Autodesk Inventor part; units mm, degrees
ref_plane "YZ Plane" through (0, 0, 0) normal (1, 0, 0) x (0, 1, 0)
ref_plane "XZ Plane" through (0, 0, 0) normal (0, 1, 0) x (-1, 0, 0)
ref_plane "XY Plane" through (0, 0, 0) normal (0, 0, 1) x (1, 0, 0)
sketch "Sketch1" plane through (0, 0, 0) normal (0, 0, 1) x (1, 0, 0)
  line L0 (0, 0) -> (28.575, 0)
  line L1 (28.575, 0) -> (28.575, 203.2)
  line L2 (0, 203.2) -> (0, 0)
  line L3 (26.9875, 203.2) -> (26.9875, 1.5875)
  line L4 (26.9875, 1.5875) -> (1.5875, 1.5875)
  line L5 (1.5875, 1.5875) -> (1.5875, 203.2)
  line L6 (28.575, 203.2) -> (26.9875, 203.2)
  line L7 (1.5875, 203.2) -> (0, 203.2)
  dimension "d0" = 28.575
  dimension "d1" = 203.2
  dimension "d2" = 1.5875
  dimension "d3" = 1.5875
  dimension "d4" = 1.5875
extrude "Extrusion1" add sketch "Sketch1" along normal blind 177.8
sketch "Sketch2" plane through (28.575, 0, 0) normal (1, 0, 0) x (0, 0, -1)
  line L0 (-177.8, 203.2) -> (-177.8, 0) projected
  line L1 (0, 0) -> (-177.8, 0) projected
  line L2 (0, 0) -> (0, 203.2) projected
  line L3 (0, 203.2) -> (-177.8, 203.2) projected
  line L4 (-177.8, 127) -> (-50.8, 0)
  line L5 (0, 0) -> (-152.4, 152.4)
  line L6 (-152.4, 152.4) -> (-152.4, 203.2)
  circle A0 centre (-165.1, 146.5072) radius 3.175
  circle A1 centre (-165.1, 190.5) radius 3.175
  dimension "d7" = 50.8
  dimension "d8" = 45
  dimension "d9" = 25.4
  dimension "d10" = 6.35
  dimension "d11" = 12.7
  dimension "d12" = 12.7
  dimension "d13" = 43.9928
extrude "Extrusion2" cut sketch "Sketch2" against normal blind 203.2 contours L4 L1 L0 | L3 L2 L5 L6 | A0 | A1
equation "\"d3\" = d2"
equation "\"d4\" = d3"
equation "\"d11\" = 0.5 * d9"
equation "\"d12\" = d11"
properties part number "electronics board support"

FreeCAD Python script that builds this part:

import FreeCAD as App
import Part
import Sketcher
from FreeCAD import Vector
Q = App.Units.Quantity

doc = App.newDocument("Part")
params = doc.addObject("Spreadsheet::Sheet", "Params")
for row, (alias, value) in enumerate([
    ("sketch1_height", "8 in"),
    ("sketch1_width", "1.125 in"),
    ("sketch1_width2", "0.0625 in"),
    ("pad1_length", "7 in"),
    ("sketch2_diameter", "0.25 in"),
    ("sketch2_width", "2 in"),
    ("sketch2_width2", "5 in"),
    ("pocket1_length", "8 in"),
], start=1):
    params.set(f"A{row}", alias)
    params.set(f"B{row}", "=" + value)
    params.setAlias(f"B{row}", alias)

body = doc.addObject("PartDesign::Body", "Body")

# Sketch on XY plane
sketch1 = body.newObject("Sketcher::SketchObject", "Sketch")
sketch1.AttachmentSupport = (doc.getObject("XY_Plane"), [""])
sketch1.MapMode = "FlatFace"
sketch1.addGeometry([
    Part.LineSegment(Vector(0, 203.2, 0), Vector(0, 0, 0)),  # 0
    Part.LineSegment(Vector(0, 0, 0), Vector(28.6, 0, 0)),  # 1
    Part.LineSegment(Vector(28.6, 0, 0), Vector(28.6, 203.2, 0)),  # 2
    Part.LineSegment(Vector(28.6, 203.2, 0), Vector(27, 203.2, 0)),  # 3
    Part.LineSegment(Vector(27, 203.2, 0), Vector(27, 1.6, 0)),  # 4
    Part.LineSegment(Vector(27, 1.6, 0), Vector(1.6, 1.6, 0)),  # 5
    Part.LineSegment(Vector(1.6, 1.6, 0), Vector(1.6, 203.2, 0)),  # 6
    Part.LineSegment(Vector(1.6, 203.2, 0), Vector(0, 203.2, 0)),  # 7
], False)
sketch1.addConstraint([
    Sketcher.Constraint("Coincident", 0, 2, 1, 1),
    Sketcher.Constraint("Coincident", 1, 2, 2, 1),
    Sketcher.Constraint("Coincident", 2, 2, 3, 1),
    Sketcher.Constraint("Coincident", 3, 2, 4, 1),
    Sketcher.Constraint("Coincident", 4, 2, 5, 1),
    Sketcher.Constraint("Coincident", 5, 2, 6, 1),
    Sketcher.Constraint("Coincident", 6, 2, 7, 1),
    Sketcher.Constraint("Coincident", 7, 2, 0, 1),
    Sketcher.Constraint("Vertical", 0),
    Sketcher.Constraint("Horizontal", 1),
    Sketcher.Constraint("Vertical", 2),
    Sketcher.Constraint("Horizontal", 3),
    Sketcher.Constraint("Vertical", 4),
    Sketcher.Constraint("Horizontal", 5),
    Sketcher.Constraint("Vertical", 6),
    Sketcher.Constraint("Horizontal", 7),
    Sketcher.Constraint("Coincident", 0, 2, -1, 1),
    Sketcher.Constraint("Horizontal", 3, 2, 6, 2),
    Sketcher.Constraint("Equal", 3, 7),
    Sketcher.Constraint("DistanceY", 0, 2, 0, 1, Q("8 in")),
    Sketcher.Constraint("DistanceX", 1, 1, 1, 2, Q("1.125 in")),
    Sketcher.Constraint("DistanceX", 3, 2, 3, 1, Q("0.0625 in")),
    Sketcher.Constraint("DistanceY", -1, 1, 4, 2, Q("0.0625 in")),
])
sketch1.setExpression("Constraints[19]", "Params.sketch1_height")
sketch1.setExpression("Constraints[20]", "Params.sketch1_width")
sketch1.setExpression("Constraints[21]", "Params.sketch1_width2")
pad1 = body.newObject("PartDesign::Pad", "Pad")
pad1.Profile = sketch1
pad1.setExpression("Length", "Params.pad1_length")

# Sketch on YZ plane
sketch2 = body.newObject("Sketcher::SketchObject", "Sketch001")
sketch2.AttachmentSupport = (doc.getObject("YZ_Plane"), [""])
sketch2.MapMode = "FlatFace"
sketch2.AttachmentOffset = App.Placement(Vector(0, 0, 1.125 * 25.4), App.Rotation())
sketch2.addGeometry([
    Part.LineSegment(Vector(0, 50.8, 0), Vector(127, 177.8, 0)),  # 0
    Part.LineSegment(Vector(127, 177.8, 0), Vector(0, 177.8, 0)),  # 1
    Part.LineSegment(Vector(0, 177.8, 0), Vector(0, 50.8, 0)),  # 2
    Part.LineSegment(Vector(203.2, 0, 0), Vector(203.2, 152.4, 0)),  # 3
    Part.LineSegment(Vector(203.2, 152.4, 0), Vector(152.4, 152.4, 0)),  # 4
    Part.LineSegment(Vector(152.4, 152.4, 0), Vector(0, 0, 0)),  # 5
    Part.LineSegment(Vector(0, 0, 0), Vector(203.2, 0, 0)),  # 6
    Part.Circle(Vector(146.5, 165.1, 0), Vector(0, 0, 1), 3.2),  # 7
    Part.Circle(Vector(190.5, 165.1, 0), Vector(0, 0, 1), 3.2),  # 8
], False)
sketch2.addConstraint([
    Sketcher.Constraint("Coincident", 0, 2, 1, 1),
    Sketcher.Constraint("Coincident", 1, 2, 2, 1),
    Sketcher.Constraint("Coincident", 2, 2, 0, 1),
    Sketcher.Constraint("Coincident", 3, 2, 4, 1),
    Sketcher.Constraint("Coincident", 4, 2, 5, 1),
    Sketcher.Constraint("Coincident", 5, 2, 6, 1),
    Sketcher.Constraint("Coincident", 6, 2, 3, 1),
    Sketcher.Constraint("Horizontal", 1),
    Sketcher.Constraint("Vertical", 2),
    Sketcher.Constraint("Vertical", 3),
    Sketcher.Constraint("Horizontal", 4),
    Sketcher.Constraint("Horizontal", 6),
    Sketcher.Constraint("Coincident", 5, 2, -1, 1),
    Sketcher.Constraint("Equal", 7, 8),
    Sketcher.Constraint("PointOnObject", 1, 2, -2),
    Sketcher.Constraint("Parallel", 0, 5),
    Sketcher.Constraint("Horizontal", 7, 3, 8, 3),
    Sketcher.Constraint("Equal", 1, 2),
    Sketcher.Constraint("Diameter", 7, Q("0.25 in")),
    Sketcher.Constraint("DistanceX", 4, 2, 4, 1, Q("2 in")),
    Sketcher.Constraint("DistanceY", -1, 1, 2, 2, Q("2 in")),
    Sketcher.Constraint("DistanceY", 3, 2, 0, 2, Q("1 in")),
    Sketcher.Constraint("DistanceY", 7, 3, 0, 2, Q("0.5 in")),
    Sketcher.Constraint("DistanceX", 8, 3, 3, 2, Q("0.5 in")),
    Sketcher.Constraint("DistanceX", 1, 2, 1, 1, Q("5 in")),
    Sketcher.Constraint("DistanceX", 7, 3, 8, 3, Q("1.732 in")),
])
sketch2.setExpression("Constraints[18]", "Params.sketch2_diameter")
sketch2.setExpression("Constraints[19]", "Params.sketch2_width")
sketch2.setExpression("Constraints[24]", "Params.sketch2_width2")
pocket1 = body.newObject("PartDesign::Pocket", "Pocket")
pocket1.Profile = sketch2
pocket1.setExpression("Length", "Params.pocket1_length")

doc.recompute()
